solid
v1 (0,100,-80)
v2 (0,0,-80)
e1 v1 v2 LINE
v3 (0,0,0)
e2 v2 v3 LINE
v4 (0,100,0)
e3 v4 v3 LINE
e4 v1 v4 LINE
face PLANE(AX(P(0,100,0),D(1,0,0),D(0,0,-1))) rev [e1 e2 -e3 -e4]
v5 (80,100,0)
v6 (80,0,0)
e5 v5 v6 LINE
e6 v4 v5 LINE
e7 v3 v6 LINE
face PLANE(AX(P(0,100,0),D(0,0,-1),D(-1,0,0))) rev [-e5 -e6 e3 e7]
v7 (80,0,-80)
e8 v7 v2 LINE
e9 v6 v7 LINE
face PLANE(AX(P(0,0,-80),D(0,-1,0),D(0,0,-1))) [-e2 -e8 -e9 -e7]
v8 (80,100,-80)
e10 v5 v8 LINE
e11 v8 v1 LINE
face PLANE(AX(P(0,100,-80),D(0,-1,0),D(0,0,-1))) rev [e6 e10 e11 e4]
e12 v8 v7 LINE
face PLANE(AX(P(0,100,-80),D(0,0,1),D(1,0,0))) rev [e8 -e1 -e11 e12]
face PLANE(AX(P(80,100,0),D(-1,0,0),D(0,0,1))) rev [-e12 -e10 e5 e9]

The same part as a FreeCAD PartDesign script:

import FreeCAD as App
import Part
import Sketcher
from FreeCAD import Vector
Q = App.Units.Quantity


def add_polygon(sketch, points):
    """Adds a closed chain of lines whose ends are joined by coincident constraints."""
    first, n = sketch.GeometryCount, len(points)
    for a, b in zip(points, points[1:] + points[:1]):
        sketch.addGeometry(Part.LineSegment(App.Vector(*a, 0), App.Vector(*b, 0)), False)
    for i in range(n):
        sketch.addConstraint(Sketcher.Constraint("Coincident", first + i, 2, first + (i + 1) % n, 1))

doc = App.newDocument("Part")
body = doc.addObject("PartDesign::Body", "Body")

sketch1 = body.newObject("Sketcher::SketchObject", "Sketch")
sketch1.AttachmentSupport = (doc.getObject("XZ_Plane"), [""])
sketch1.MapMode = "FlatFace"
add_polygon(sketch1, [(0, -80), (0, 0), (80, 0), (80, -80)])
sketch1.addConstraint(Sketcher.Constraint("Vertical", 0))
sketch1.addConstraint(Sketcher.Constraint("Horizontal", 1))
sketch1.addConstraint(Sketcher.Constraint("Vertical", 2))
sketch1.addConstraint(Sketcher.Constraint("Horizontal", 3))
sketch1.addConstraint(Sketcher.Constraint("Coincident", 0, 2, -1, 1))
sketch1.addConstraint(Sketcher.Constraint("Equal", 3, 0))
sketch1.addConstraint(Sketcher.Constraint("DistanceX", 1, 1, 1, 2, Q("80 mm")))
pad1 = body.newObject("PartDesign::Pad", "Pad")
pad1.Profile = sketch1
pad1.Length = 100
pad1.Reversed = True

doc.recompute()
